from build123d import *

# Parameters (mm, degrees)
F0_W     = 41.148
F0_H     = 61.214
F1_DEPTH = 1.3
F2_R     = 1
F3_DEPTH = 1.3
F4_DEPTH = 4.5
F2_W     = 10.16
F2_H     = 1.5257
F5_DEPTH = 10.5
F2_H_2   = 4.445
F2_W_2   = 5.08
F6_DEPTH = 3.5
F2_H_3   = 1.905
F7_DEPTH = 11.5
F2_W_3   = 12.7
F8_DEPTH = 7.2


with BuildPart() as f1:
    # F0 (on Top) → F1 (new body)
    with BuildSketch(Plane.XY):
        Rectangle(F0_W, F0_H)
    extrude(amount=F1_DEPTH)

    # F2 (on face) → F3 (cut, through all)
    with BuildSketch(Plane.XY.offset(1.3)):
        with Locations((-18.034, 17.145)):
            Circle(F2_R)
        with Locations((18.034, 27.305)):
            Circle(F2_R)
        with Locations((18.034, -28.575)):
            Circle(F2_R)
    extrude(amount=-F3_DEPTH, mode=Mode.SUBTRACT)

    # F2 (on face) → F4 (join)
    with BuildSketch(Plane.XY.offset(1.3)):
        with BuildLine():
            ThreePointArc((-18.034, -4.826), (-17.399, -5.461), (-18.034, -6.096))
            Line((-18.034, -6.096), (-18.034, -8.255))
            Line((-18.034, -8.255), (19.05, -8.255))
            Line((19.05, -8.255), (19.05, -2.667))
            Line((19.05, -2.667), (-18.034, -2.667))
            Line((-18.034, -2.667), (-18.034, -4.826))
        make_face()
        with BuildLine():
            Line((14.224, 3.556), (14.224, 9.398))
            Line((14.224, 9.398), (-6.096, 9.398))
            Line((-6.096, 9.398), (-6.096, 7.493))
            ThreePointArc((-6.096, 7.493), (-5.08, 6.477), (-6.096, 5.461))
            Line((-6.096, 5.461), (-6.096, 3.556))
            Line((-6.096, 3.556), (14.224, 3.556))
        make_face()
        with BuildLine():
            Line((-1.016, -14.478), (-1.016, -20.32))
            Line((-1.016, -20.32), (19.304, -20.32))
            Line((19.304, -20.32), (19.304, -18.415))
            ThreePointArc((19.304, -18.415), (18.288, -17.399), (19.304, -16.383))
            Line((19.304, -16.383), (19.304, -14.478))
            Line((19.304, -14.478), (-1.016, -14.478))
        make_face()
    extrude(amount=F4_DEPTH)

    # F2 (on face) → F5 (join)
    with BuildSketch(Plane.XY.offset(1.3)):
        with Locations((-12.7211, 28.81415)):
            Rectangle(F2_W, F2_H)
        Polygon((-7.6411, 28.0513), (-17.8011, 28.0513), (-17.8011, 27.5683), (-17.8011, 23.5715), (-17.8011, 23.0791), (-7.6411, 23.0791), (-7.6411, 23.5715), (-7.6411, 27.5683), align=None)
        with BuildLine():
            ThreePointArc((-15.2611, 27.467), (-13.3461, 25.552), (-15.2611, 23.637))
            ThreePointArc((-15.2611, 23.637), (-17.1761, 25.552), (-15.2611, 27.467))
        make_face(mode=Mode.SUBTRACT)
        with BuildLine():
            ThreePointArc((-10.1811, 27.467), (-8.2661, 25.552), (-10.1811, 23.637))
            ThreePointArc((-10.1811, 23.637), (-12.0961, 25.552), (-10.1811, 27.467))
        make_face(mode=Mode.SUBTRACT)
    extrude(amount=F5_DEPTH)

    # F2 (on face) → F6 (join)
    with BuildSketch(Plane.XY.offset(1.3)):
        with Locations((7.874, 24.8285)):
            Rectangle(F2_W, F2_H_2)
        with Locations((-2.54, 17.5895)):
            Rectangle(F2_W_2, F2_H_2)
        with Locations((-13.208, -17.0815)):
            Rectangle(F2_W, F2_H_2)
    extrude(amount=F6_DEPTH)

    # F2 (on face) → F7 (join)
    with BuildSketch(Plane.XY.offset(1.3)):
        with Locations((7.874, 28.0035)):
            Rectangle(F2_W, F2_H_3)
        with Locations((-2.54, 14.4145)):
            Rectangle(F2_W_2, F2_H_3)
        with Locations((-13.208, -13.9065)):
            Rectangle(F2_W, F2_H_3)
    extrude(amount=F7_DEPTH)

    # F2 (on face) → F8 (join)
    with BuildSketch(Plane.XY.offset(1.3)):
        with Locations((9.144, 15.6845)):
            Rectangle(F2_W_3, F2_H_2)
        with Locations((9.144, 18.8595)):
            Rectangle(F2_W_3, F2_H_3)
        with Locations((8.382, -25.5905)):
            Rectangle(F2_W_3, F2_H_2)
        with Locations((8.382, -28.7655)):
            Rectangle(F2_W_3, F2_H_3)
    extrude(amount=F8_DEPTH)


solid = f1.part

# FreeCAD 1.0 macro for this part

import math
import FreeCAD as App
import Part
import Sketcher

V = App.Vector
Q = App.Units.Quantity

doc = App.newDocument("Part")
params = doc.addObject("Spreadsheet::Sheet", "Params")
for row, (alias, value) in enumerate([
    ("sketch1_width", "1.62 in"),
    ("sketch1_height", "2.41 in"),
    ("pad1_length", "1.3 mm"),
    ("sketch3_radius", "0.04 in"),
    ("sketch3_width", "0.8 in"),
    ("sketch3_radius2", "0.025 in"),
    ("sketch3_width2", "1.46 in"),
    ("sketch3_height", "0.22 in"),
    ("pad2_length", "4.5 mm"),
    ("sketch4_width", "0.4 in"),
    ("pad3_length", "10.5 mm"),
    ("sketch5_width", "0.4 in"),
    ("sketch5_width2", "0.2 in"),
    ("sketch5_height", "0.175 in"),
    ("pad4_length", "3.5 mm"),
    ("sketch6_width", "0.4 in"),
    ("sketch6_width2", "0.2 in"),
    ("sketch6_height", "0.075 in"),
    ("pad5_length", "11.5 mm"),
    ("sketch7_width", "0.5 in"),
    ("sketch7_height", "0.25 in"),
    ("pad6_length", "7.2 mm"),
], start=1):
    params.set(f"A{row}", alias)
    params.set(f"B{row}", "=" + value)
    params.setAlias(f"B{row}", alias)

body = doc.addObject("PartDesign::Body", "Body")

# Sketch on XY plane
sketch1 = doc.addObject("Sketcher::SketchObject", "Sketch")
body.addObject(sketch1)
sketch1.AttachmentSupport = (doc.XY_Plane, [""])
sketch1.MapMode = "FlatFace"
sketch1.addGeometry([
    Part.LineSegment(V(-20.574, 30.607, 0), V(-20.574, -30.607, 0)),
    Part.LineSegment(V(-20.574, -30.607, 0), V(20.574, -30.607, 0)),
    Part.LineSegment(V(20.574, -30.607, 0), V(20.574, 30.607, 0)),
    Part.LineSegment(V(20.574, 30.607, 0), V(-20.574, 30.607, 0)),
], False)
sketch1.addConstraint([
    Sketcher.Constraint("Coincident", 0, 2, 1, 1),
    Sketcher.Constraint("Coincident", 1, 2, 2, 1),
    Sketcher.Constraint("Coincident", 2, 2, 3, 1),
    Sketcher.Constraint("Coincident", 3, 2, 0, 1),
    Sketcher.Constraint("Vertical", 0),
    Sketcher.Constraint("Horizontal", 1),
    Sketcher.Constraint("Vertical", 2),
    Sketcher.Constraint("Horizontal", 3),
    Sketcher.Constraint("Symmetric", 0, 2, 2, 2, -1, 1),
    Sketcher.Constraint("DistanceX", 1, 1, 1, 2, Q("1.62 in")),
    Sketcher.Constraint("DistanceY", 0, 2, 0, 1, Q("2.41 in")),
])
sketch1.setExpression("Constraints[9]", "Params.sketch1_width")
sketch1.setExpression("Constraints[10]", "Params.sketch1_height")
pad1 = doc.addObject("PartDesign::Pad", "Pad")
body.addObject(pad1)
pad1.Profile = sketch1
pad1.setExpression("Length", "Params.pad1_length")

# Sketch on XY plane
sketch2 = doc.addObject("Sketcher::SketchObject", "Sketch001")
body.addObject(sketch2)
sketch2.AttachmentSupport = (doc.XY_Plane, [""])
sketch2.MapMode = "FlatFace"
sketch2.AttachmentOffset = App.Placement(V(0, 0, 1.3), App.Rotation())
sketch2.addGeometry([
    Part.Circle(V(-18.034, 17.145, 0), V(0, 0, 1), 1),
    Part.Circle(V(18.034, 27.305, 0), V(0, 0, 1), 1),
    Part.Circle(V(18.034, -28.575, 0), V(0, 0, 1), 1),
], False)
sketch2.addConstraint([
    Sketcher.Constraint("Equal", 0, 1),
    Sketcher.Constraint("Equal", 1, 2),
    Sketcher.Constraint("Vertical", 1, 3, 2, 3),
    Sketcher.Constraint("DistanceY", 0, 3, 1, 3, Q("0.4 in")),
    Sketcher.Constraint("DistanceY", 2, 3, 1, 3, Q("2.2 in")),
    Sketcher.Constraint("Diameter", 0, Q("2 mm")),
    Sketcher.Constraint("DistanceX", 0, 3, -1, 1, Q("0.71 in")),
    Sketcher.Constraint("DistanceX", -1, 1, 1, 3, Q("0.71 in")),
    Sketcher.Constraint("DistanceY", -1, 1, 0, 3, Q("0.675 in")),
])
pocket1 = doc.addObject("PartDesign::Pocket", "Pocket")
body.addObject(pocket1)
pocket1.Profile = sketch2
pocket1.Type = "ThroughAll"

# Sketch on XY plane
sketch3 = doc.addObject("Sketcher::SketchObject", "Sketch002")
body.addObject(sketch3)
sketch3.AttachmentSupport = (doc.XY_Plane, [""])
sketch3.MapMode = "FlatFace"
sketch3.AttachmentOffset = App.Placement(V(0, 0, 1.3), App.Rotation())
sketch3.addGeometry([
    Part.ArcOfCircle(Part.Circle(V(-18.034, -5.461, 0), V(0, 0, 1), 0.635), math.radians(-90), math.radians(90)),  # 0
    Part.LineSegment(V(-18.034, -6.096, 0), V(-18.034, -8.255, 0)),  # 1
    Part.LineSegment(V(-18.034, -8.255, 0), V(19.05, -8.255, 0)),  # 2
    Part.LineSegment(V(19.05, -8.255, 0), V(19.05, -2.667, 0)),  # 3
    Part.LineSegment(V(19.05, -2.667, 0), V(-18.034, -2.667, 0)),  # 4
    Part.LineSegment(V(-18.034, -2.667, 0), V(-18.034, -4.826, 0)),  # 5
    Part.LineSegment(V(14.224, 3.556, 0), V(14.224, 9.398, 0)),  # 6
    Part.LineSegment(V(14.224, 9.398, 0), V(-6.096, 9.398, 0)),  # 7
    Part.LineSegment(V(-6.096, 9.398, 0), V(-6.096, 7.493, 0)),  # 8
    Part.ArcOfCircle(Part.Circle(V(-6.096, 6.477, 0), V(0, 0, 1), 1.016), math.radians(-90), math.radians(90)),  # 9
    Part.LineSegment(V(-6.096, 5.461, 0), V(-6.096, 3.556, 0)),  # 10
    Part.LineSegment(V(-6.096, 3.556, 0), V(14.224, 3.556, 0)),  # 11
    Part.LineSegment(V(-1.016, -14.478, 0), V(-1.016, -20.32, 0)),  # 12
    Part.LineSegment(V(-1.016, -20.32, 0), V(19.304, -20.32, 0)),  # 13
    Part.LineSegment(V(19.304, -20.32, 0), V(19.304, -18.415, 0)),  # 14
    Part.ArcOfCircle(Part.Circle(V(19.304, -17.399, 0), V(0, 0, 1), 1.016), math.radians(90), math.radians(270)),  # 15
    Part.LineSegment(V(19.304, -16.383, 0), V(19.304, -14.478, 0)),  # 16
    Part.LineSegment(V(19.304, -14.478, 0), V(-1.016, -14.478, 0)),  # 17
], False)
sketch3.addConstraint([
    Sketcher.Constraint("Coincident", 0, 1, 1, 1),
    Sketcher.Constraint("Coincident", 1, 2, 2, 1),
    Sketcher.Constraint("Coincident", 2, 2, 3, 1),
    Sketcher.Constraint("Coincident", 3, 2, 4, 1),
    Sketcher.Constraint("Coincident", 4, 2, 5, 1),
    Sketcher.Constraint("Coincident", 5, 2, 0, 2),
    Sketcher.Constraint("Coincident", 6, 2, 7, 1),
    Sketcher.Constraint("Coincident", 7, 2, 8, 1),
    Sketcher.Constraint("Coincident", 8, 2, 9, 2),
    Sketcher.Constraint("Coincident", 9, 1, 10, 1),
    Sketcher.Constraint("Coincident", 10, 2, 11, 1),
    Sketcher.Constraint("Coincident", 11, 2, 6, 1),
    Sketcher.Constraint("Coincident", 12, 2, 13, 1),
    Sketcher.Constraint("Coincident", 13, 2, 14, 1),
    Sketcher.Constraint("Coincident", 14, 2, 15, 2),
    Sketcher.Constraint("Coincident", 15, 1, 16, 1),
    Sketcher.Constraint("Coincident", 16, 2, 17, 1),
    Sketcher.Constraint("Coincident", 17, 2, 12, 1),
    Sketcher.Constraint("Vertical", 1),
    Sketcher.Constraint("Horizontal", 2),
    Sketcher.Constraint("Vertical", 3),
    Sketcher.Constraint("Horizontal", 4),
    Sketcher.Constraint("Vertical", 5),
    Sketcher.Constraint("Vertical", 6),
    Sketcher.Constraint("Horizontal", 7),
    Sketcher.Constraint("Vertical", 8),
    Sketcher.Constraint("Vertical", 10),
    Sketcher.Constraint("Horizontal", 11),
    Sketcher.Constraint("Vertical", 12),
    Sketcher.Constraint("Horizontal", 13),
    Sketcher.Constraint("Vertical", 14),
    Sketcher.Constraint("Vertical", 16),
    Sketcher.Constraint("Horizontal", 17),
    Sketcher.Constraint("Equal", 9, 15),
    Sketcher.Constraint("Vertical", 1, 2, 4, 2),
    Sketcher.Constraint("Vertical", 9, 3, 7, 2),
    Sketcher.Constraint("Vertical", 8, 2, 9, 1),
    Sketcher.Constraint("Vertical", 15, 3, 13, 2),
    Sketcher.Constraint("Vertical", 14, 2, 15, 1),
    Sketcher.Constraint("Equal", 11, 13),
    Sketcher.Constraint("Equal", 1, 5),
    Sketcher.Constraint("Equal", 8, 10),
    Sketcher.Constraint("Equal", 6, 12),
    Sketcher.Constraint("Equal", 10, 14),
    Sketcher.Constraint("Radius", 9, Q("0.04 in")),
    Sketcher.Constraint("DistanceX", 7, 2, 7, 1, Q("0.8 in")),
    Sketcher.Constraint("Radius", 0, Q("0.025 in")),
    Sketcher.Constraint("DistanceX", 9, 3, 15, 3, Q("1 in")),
    Sketcher.Constraint("DistanceX", 2, 1, 2, 2, Q("1.46 in")),
    Sketcher.Constraint("DistanceY", 3, 1, 3, 2, Q("0.22 in")),
    Sketcher.Constraint("DistanceY", 6, 1, 6, 2, Q("0.23 in")),
    Sketcher.Constraint("DistanceY", 12, 2, -1, 1, Q("0.8 in")),
    Sketcher.Constraint("DistanceY", 4, 2, 8, 2, Q("0.4 in")),
    Sketcher.Constraint("DistanceY", 14, 2, 2, 2, Q("0.4 in")),
    Sketcher.Constraint("DistanceX", 0, 3, -1, 1, Q("0.71 in")),
    Sketcher.Constraint("DistanceX", 9, 3, -1, 1, Q("0.24 in")),
    Sketcher.Constraint("DistanceX", 0, 1, -1, 1, Q("0.71 in")),
])
sketch3.setExpression("Constraints[44]", "Params.sketch3_radius")
sketch3.setExpression("Constraints[45]", "Params.sketch3_width")
sketch3.setExpression("Constraints[46]", "Params.sketch3_radius2")
sketch3.setExpression("Constraints[48]", "Params.sketch3_width2")
sketch3.setExpression("Constraints[49]", "Params.sketch3_height")
pad2 = doc.addObject("PartDesign::Pad", "Pad001")
body.addObject(pad2)
pad2.Profile = sketch3
pad2.setExpression("Length", "Params.pad2_length")

# Sketch on XY plane
sketch4 = doc.addObject("Sketcher::SketchObject", "Sketch003")
body.addObject(sketch4)
sketch4.AttachmentSupport = (doc.XY_Plane, [""])
sketch4.MapMode = "FlatFace"
sketch4.AttachmentOffset = App.Placement(V(0, 0, 1.3), App.Rotation())
sketch4.addGeometry([
    Part.LineSegment(V(-17.8011, 29.577, 0), V(-17.8011, 23.0791, 0)),  # 0
    Part.LineSegment(V(-17.8011, 23.0791, 0), V(-7.6411, 23.0791, 0)),  # 1
    Part.LineSegment(V(-7.6411, 23.0791, 0), V(-7.6411, 29.577, 0)),  # 2
    Part.LineSegment(V(-7.6411, 29.577, 0), V(-17.8011, 29.577, 0)),  # 3
    Part.Circle(V(-15.2611, 25.552, 0), V(0, 0, 1), 1.915),  # 4
    Part.Circle(V(-10.1811, 25.552, 0), V(0, 0, 1), 1.915),  # 5
], False)
sketch4.addConstraint([
    Sketcher.Constraint("Coincident", 0, 2, 1, 1),
    Sketcher.Constraint("Coincident", 1, 2, 2, 1),
    Sketcher.Constraint("Coincident", 2, 2, 3, 1),
    Sketcher.Constraint("Coincident", 3, 2, 0, 1),
    Sketcher.Constraint("Vertical", 0),
    Sketcher.Constraint("Horizontal", 1),
    Sketcher.Constraint("Vertical", 2),
    Sketcher.Constraint("Horizontal", 3),
    Sketcher.Constraint("Equal", 4, 5),
    Sketcher.Constraint("Horizontal", 4, 3, 5, 3),
    Sketcher.Constraint("DistanceX", 1, 1, 1, 2, Q("0.4 in")),
    Sketcher.Constraint("DistanceX", 4, 3, 5, 3, Q("0.2 in")),
    Sketcher.Constraint("DistanceX", 0, 2, 4, 3, Q("0.1 in")),
    Sketcher.Constraint("Diameter", 4, Q("3.83 mm")),
    Sketcher.Constraint("DistanceY", 0, 2, 0, 1, Q("6.4979 mm")),
    Sketcher.Constraint("DistanceX", 4, 3, -1, 1, Q("15.2611 mm")),
    Sketcher.Constraint("DistanceY", -1, 1, 4, 3, Q("25.552 mm")),
    Sketcher.Constraint("DistanceY", -1, 1, 0, 2, Q("23.0791 mm")),
])
sketch4.setExpression("Constraints[10]", "Params.sketch4_width")
pad3 = doc.addObject("PartDesign::Pad", "Pad002")
body.addObject(pad3)
pad3.Profile = sketch4
pad3.setExpression("Length", "Params.pad3_length")

# Sketch on XY plane
sketch5 = doc.addObject("Sketcher::SketchObject", "Sketch004")
body.addObject(sketch5)
sketch5.AttachmentSupport = (doc.XY_Plane, [""])
sketch5.MapMode = "FlatFace"
sketch5.AttachmentOffset = App.Placement(V(0, 0, 1.3), App.Rotation())
sketch5.addGeometry([
    Part.LineSegment(V(2.794, 27.051, 0), V(2.794, 22.606, 0)),  # 0
    Part.LineSegment(V(2.794, 22.606, 0), V(12.954, 22.606, 0)),  # 1
    Part.LineSegment(V(12.954, 22.606, 0), V(12.954, 27.051, 0)),  # 2
    Part.LineSegment(V(12.954, 27.051, 0), V(2.794, 27.051, 0)),  # 3
    Part.LineSegment(V(-5.08, 19.812, 0), V(-5.08, 15.367, 0)),  # 4
    Part.LineSegment(V(-5.08, 15.367, 0), V(0, 15.367, 0)),  # 5
    Part.LineSegment(V(0, 15.367, 0), V(0, 19.812, 0)),  # 6
    Part.LineSegment(V(0, 19.812, 0), V(-5.08, 19.812, 0)),  # 7
    Part.LineSegment(V(-18.288, -14.859, 0), V(-18.288, -19.304, 0)),  # 8
    Part.LineSegment(V(-18.288, -19.304, 0), V(-8.128, -19.304, 0)),  # 9
    Part.LineSegment(V(-8.128, -19.304, 0), V(-8.128, -14.859, 0)),  # 10
    Part.LineSegment(V(-8.128, -14.859, 0), V(-18.288, -14.859, 0)),  # 11
], False)
sketch5.addConstraint([
    Sketcher.Constraint("Coincident", 0, 2, 1, 1),
    Sketcher.Constraint("Coincident", 1, 2, 2, 1),
    Sketcher.Constraint("Coincident", 2, 2, 3, 1),
    Sketcher.Constraint("Coincident", 3, 2, 0, 1),
    Sketcher.Constraint("Coincident", 4, 2, 5, 1),
    Sketcher.Constraint("Coincident", 5, 2, 6, 1),
    Sketcher.Constraint("Coincident", 6, 2, 7, 1),
    Sketcher.Constraint("Coincident", 7, 2, 4, 1),
    Sketcher.Constraint("Coincident", 8, 2, 9, 1),
    Sketcher.Constraint("Coincident", 9, 2, 10, 1),
    Sketcher.Constraint("Coincident", 10, 2, 11, 1),
    Sketcher.Constraint("Coincident", 11, 2, 8, 1),
    Sketcher.Constraint("Vertical", 0),
    Sketcher.Constraint("Horizontal", 1),
    Sketcher.Constraint("Vertical", 2),
    Sketcher.Constraint("Horizontal", 3),
    Sketcher.Constraint("Vertical", 4),
    Sketcher.Constraint("Horizontal", 5),
    Sketcher.Constraint("Vertical", 6),
    Sketcher.Constraint("Horizontal", 7),
    Sketcher.Constraint("Vertical", 8),
    Sketcher.Constraint("Horizontal", 9),
    Sketcher.Constraint("Vertical", 10),
    Sketcher.Constraint("Horizontal", 11),
    Sketcher.Constraint("PointOnObject", 5, 2, -2),
    Sketcher.Constraint("Equal", 3, 9),
    Sketcher.Constraint("Equal", 2, 4),
    Sketcher.Constraint("Equal", 6, 8),
    Sketcher.Constraint("DistanceX", 1, 1, 1, 2, Q("0.4 in")),
    Sketcher.Constraint("DistanceX", 5, 1, 5, 2, Q("0.2 in")),
    Sketcher.Constraint("DistanceY", 0, 2, 0, 1, Q("0.175 in")),
    Sketcher.Constraint("DistanceX", -1, 1, 0, 2, Q("0.11 in")),
    Sketcher.Constraint("DistanceY", -1, 1, 0, 2, Q("0.89 in")),
    Sketcher.Constraint("DistanceY", -1, 1, 6, 2, Q("0.78 in")),
    Sketcher.Constraint("DistanceX", 8, 2, -1, 1, Q("0.72 in")),
    Sketcher.Constraint("DistanceY", 8, 2, -1, 1, Q("0.76 in")),
])
sketch5.setExpression("Constraints[28]", "Params.sketch5_width")
sketch5.setExpression("Constraints[29]", "Params.sketch5_width2")
sketch5.setExpression("Constraints[30]", "Params.sketch5_height")
pad4 = doc.addObject("PartDesign::Pad", "Pad003")
body.addObject(pad4)
pad4.Profile = sketch5
pad4.setExpression("Length", "Params.pad4_length")

# Sketch on XY plane
sketch6 = doc.addObject("Sketcher::SketchObject", "Sketch005")
body.addObject(sketch6)
sketch6.AttachmentSupport = (doc.XY_Plane, [""])
sketch6.MapMode = "FlatFace"
sketch6.AttachmentOffset = App.Placement(V(0, 0, 1.3), App.Rotation())
sketch6.addGeometry([
    Part.LineSegment(V(2.794, 28.956, 0), V(2.794, 27.051, 0)),  # 0
    Part.LineSegment(V(2.794, 27.051, 0), V(12.954, 27.051, 0)),  # 1
    Part.LineSegment(V(12.954, 27.051, 0), V(12.954, 28.956, 0)),  # 2
    Part.LineSegment(V(12.954, 28.956, 0), V(2.794, 28.956, 0)),  # 3
    Part.LineSegment(V(-5.08, 15.367, 0), V(-5.08, 13.462, 0)),  # 4
    Part.LineSegment(V(-5.08, 13.462, 0), V(0, 13.462, 0)),  # 5
    Part.LineSegment(V(0, 13.462, 0), V(0, 15.367, 0)),  # 6
    Part.LineSegment(V(0, 15.367, 0), V(-5.08, 15.367, 0)),  # 7
    Part.LineSegment(V(-18.288, -12.954, 0), V(-18.288, -14.859, 0)),  # 8
    Part.LineSegment(V(-18.288, -14.859, 0), V(-8.128, -14.859, 0)),  # 9
    Part.LineSegment(V(-8.128, -14.859, 0), V(-8.128, -12.954, 0)),  # 10
    Part.LineSegment(V(-8.128, -12.954, 0), V(-18.288, -12.954, 0)),  # 11
], False)
sketch6.addConstraint([
    Sketcher.Constraint("Coincident", 0, 2, 1, 1),
    Sketcher.Constraint("Coincident", 1, 2, 2, 1),
    Sketcher.Constraint("Coincident", 2, 2, 3, 1),
    Sketcher.Constraint("Coincident", 3, 2, 0, 1),
    Sketcher.Constraint("Coincident", 4, 2, 5, 1),
    Sketcher.Constraint("Coincident", 5, 2, 6, 1),
    Sketcher.Constraint("Coincident", 6, 2, 7, 1),
    Sketcher.Constraint("Coincident", 7, 2, 4, 1),
    Sketcher.Constraint("Coincident", 8, 2, 9, 1),
    Sketcher.Constraint("Coincident", 9, 2, 10, 1),
    Sketcher.Constraint("Coincident", 10, 2, 11, 1),
    Sketcher.Constraint("Coincident", 11, 2, 8, 1),
    Sketcher.Constraint("Vertical", 0),
    Sketcher.Constraint("Horizontal", 1),
    Sketcher.Constraint("Vertical", 2),
    Sketcher.Constraint("Horizontal", 3),
    Sketcher.Constraint("Vertical", 4),
    Sketcher.Constraint("Horizontal", 5),
    Sketcher.Constraint("Vertical", 6),
    Sketcher.Constraint("Horizontal", 7),
    Sketcher.Constraint("Vertical", 8),
    Sketcher.Constraint("Horizontal", 9),
    Sketcher.Constraint("Vertical", 10),
    Sketcher.Constraint("Horizontal", 11),
    Sketcher.Constraint("PointOnObject", 5, 2, -2),
    Sketcher.Constraint("Equal", 3, 9),
    Sketcher.Constraint("Equal", 2, 4),
    Sketcher.Constraint("Equal", 6, 8),
    Sketcher.Constraint("DistanceX", 1, 1, 1, 2, Q("0.4 in")),
    Sketcher.Constraint("DistanceX", 5, 1, 5, 2, Q("0.2 in")),
    Sketcher.Constraint("DistanceY", 0, 2, 0, 1, Q("0.075 in")),
    Sketcher.Constraint("DistanceX", -1, 1, 0, 2, Q("0.11 in")),
    Sketcher.Constraint("DistanceY", -1, 1, 2, 2, Q("1.14 in")),
    Sketcher.Constraint("DistanceY", -1, 1, 4, 2, Q("0.53 in")),
    Sketcher.Constraint("DistanceX", 8, 2, -1, 1, Q("0.72 in")),
    Sketcher.Constraint("DistanceY", 10, 2, -1, 1, Q("0.51 in")),
])
sketch6.setExpression("Constraints[28]", "Params.sketch6_width")
sketch6.setExpression("Constraints[29]", "Params.sketch6_width2")
sketch6.setExpression("Constraints[30]", "Params.sketch6_height")
pad5 = doc.addObject("PartDesign::Pad", "Pad004")
body.addObject(pad5)
pad5.Profile = sketch6
pad5.setExpression("Length", "Params.pad5_length")

# Sketch on XY plane
sketch7 = doc.addObject("Sketcher::SketchObject", "Sketch006")
body.addObject(sketch7)
sketch7.AttachmentSupport = (doc.XY_Plane, [""])
sketch7.MapMode = "FlatFace"
sketch7.AttachmentOffset = App.Placement(V(0, 0, 1.3), App.Rotation())
sketch7.addGeometry([
    Part.LineSegment(V(2.794, 13.462, 0), V(15.494, 13.462, 0)),  # 0
    Part.LineSegment(V(15.494, 13.462, 0), V(15.494, 19.812, 0)),  # 1
    Part.LineSegment(V(15.494, 19.812, 0), V(2.794, 19.812, 0)),  # 2
    Part.LineSegment(V(2.794, 19.812, 0), V(2.794, 13.462, 0)),  # 3
    Part.LineSegment(V(2.032, -23.368, 0), V(2.032, -29.718, 0)),  # 4
    Part.LineSegment(V(2.032, -29.718, 0), V(14.732, -29.718, 0)),  # 5
    Part.LineSegment(V(14.732, -29.718, 0), V(14.732, -23.368, 0)),  # 6
    Part.LineSegment(V(14.732, -23.368, 0), V(2.032, -23.368, 0)),  # 7
], False)
sketch7.addConstraint([
    Sketcher.Constraint("Coincident", 0, 2, 1, 1),
    Sketcher.Constraint("Coincident", 1, 2, 2, 1),
    Sketcher.Constraint("Coincident", 2, 2, 3, 1),
    Sketcher.Constraint("Coincident", 3, 2, 0, 1),
    Sketcher.Constraint("Coincident", 4, 2, 5, 1),
    Sketcher.Constraint("Coincident", 5, 2, 6, 1),
    Sketcher.Constraint("Coincident", 6, 2, 7, 1),
    Sketcher.Constraint("Coincident", 7, 2, 4, 1),
    Sketcher.Constraint("Horizontal", 0),
    Sketcher.Constraint("Vertical", 1),
    Sketcher.Constraint("Horizontal", 2),
    Sketcher.Constraint("Vertical", 3),
    Sketcher.Constraint("Vertical", 4),
    Sketcher.Constraint("Horizontal", 5),
    Sketcher.Constraint("Vertical", 6),
    Sketcher.Constraint("Horizontal", 7),
    Sketcher.Constraint("Equal", 2, 5),
    Sketcher.Constraint("Equal", 3, 4),
    Sketcher.Constraint("DistanceX", 0, 1, 0, 2, Q("0.5 in")),
    Sketcher.Constraint("DistanceY", 1, 1, 1, 2, Q("0.25 in")),
    Sketcher.Constraint("DistanceY", 4, 2, 3, 2, Q("1.7 in")),
    Sketcher.Constraint("DistanceX", -1, 1, 0, 2, Q("0.61 in")),
    Sketcher.Constraint("DistanceY", -1, 1, 0, 2, Q("0.53 in")),
    Sketcher.Constraint("DistanceX", -1, 1, 4, 2, Q("0.08 in")),
])
sketch7.setExpression("Constraints[18]", "Params.sketch7_width")
sketch7.setExpression("Constraints[19]", "Params.sketch7_height")
pad6 = doc.addObject("PartDesign::Pad", "Pad005")
body.addObject(pad6)
pad6.Profile = sketch7
pad6.setExpression("Length", "Params.pad6_length")

doc.recompute()
